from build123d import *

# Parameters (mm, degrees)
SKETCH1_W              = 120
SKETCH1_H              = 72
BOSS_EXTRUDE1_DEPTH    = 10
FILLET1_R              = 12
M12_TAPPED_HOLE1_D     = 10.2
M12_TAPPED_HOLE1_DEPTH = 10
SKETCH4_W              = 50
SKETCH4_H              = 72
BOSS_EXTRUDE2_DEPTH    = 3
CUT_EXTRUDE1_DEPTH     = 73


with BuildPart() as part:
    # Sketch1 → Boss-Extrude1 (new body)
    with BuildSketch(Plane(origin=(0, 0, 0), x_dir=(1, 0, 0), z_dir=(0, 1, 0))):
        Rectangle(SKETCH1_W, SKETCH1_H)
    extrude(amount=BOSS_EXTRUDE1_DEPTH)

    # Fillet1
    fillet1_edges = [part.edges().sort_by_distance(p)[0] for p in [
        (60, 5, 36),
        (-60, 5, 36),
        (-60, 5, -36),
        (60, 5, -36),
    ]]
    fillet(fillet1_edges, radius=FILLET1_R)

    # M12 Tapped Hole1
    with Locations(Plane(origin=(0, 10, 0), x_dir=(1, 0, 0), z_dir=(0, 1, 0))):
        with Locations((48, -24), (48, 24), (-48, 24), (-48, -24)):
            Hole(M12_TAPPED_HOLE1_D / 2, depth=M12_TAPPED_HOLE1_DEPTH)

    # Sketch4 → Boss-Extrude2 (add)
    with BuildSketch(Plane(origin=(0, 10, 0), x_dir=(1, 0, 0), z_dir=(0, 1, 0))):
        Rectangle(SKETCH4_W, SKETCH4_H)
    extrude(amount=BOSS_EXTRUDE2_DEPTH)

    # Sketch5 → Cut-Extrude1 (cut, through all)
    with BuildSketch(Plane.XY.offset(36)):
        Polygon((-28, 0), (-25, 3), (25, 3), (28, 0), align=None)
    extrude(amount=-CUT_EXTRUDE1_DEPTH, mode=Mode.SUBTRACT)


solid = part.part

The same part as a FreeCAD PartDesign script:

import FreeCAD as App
import Part
import Sketcher

V = App.Vector


def edges_at(feature, points):
    """Names of the edges that pass closest to the given points."""
    edges = feature.Shape.Edges
    near = lambda p: min(range(len(edges)), key=lambda i: edges[i].distToShape(Part.Vertex(*p))[0])
    return sorted({f"Edge{near(p) + 1}" for p in points})


def add_polygon(sketch, points):
    """Adds a closed chain of lines whose ends are joined by coincident constraints."""
    first, n = sketch.GeometryCount, len(points)
    for a, b in zip(points, points[1:] + points[:1]):
        sketch.addGeometry(Part.LineSegment(App.Vector(*a, 0), App.Vector(*b, 0)), False)
    for i in range(n):
        sketch.addConstraint(Sketcher.Constraint("Coincident", first + i, 2, first + (i + 1) % n, 1))

doc = App.newDocument("Part")
body = doc.addObject("PartDesign::Body", "Body")

# Sketch on XZ plane
sketch1 = body.newObject("Sketcher::SketchObject", "Sketch")
sketch1.AttachmentSupport = (doc.getObject("XZ_Plane"), [""])
sketch1.MapMode = "FlatFace"
add_polygon(sketch1, [(-60, -36), (-60, 36), (60, 36), (60, -36)])  # lines 0-3
sketch1.addConstraint(Sketcher.Constraint("Vertical", 0))
sketch1.addConstraint(Sketcher.Constraint("Horizontal", 1))
sketch1.addConstraint(Sketcher.Constraint("Vertical", 2))
sketch1.addConstraint(Sketcher.Constraint("Horizontal", 3))
sketch1.addConstraint(Sketcher.Constraint("Symmetric", 0, 2, 2, 2, -1, 1))
sketch1.addConstraint(Sketcher.Constraint("DistanceX", 1, 1, 1, 2, 120.0))
sketch1.addConstraint(Sketcher.Constraint("DistanceY", 0, 1, 0, 2, 72.0))
pad1 = body.newObject("PartDesign::Pad", "Pad")
pad1.Profile = sketch1
pad1.Length = 10
pad1.Reversed = True
doc.recompute()

fillet = body.newObject("PartDesign::Fillet", "Fillet")
fillet.Base = (pad1, edges_at(pad1, [
    (60, 5, 36),
    (-60, 5, 36),
    (-60, 5, -36),
    (60, 5, -36),
]))
fillet.Radius = 12

# Sketch on XZ plane
sketch2 = body.newObject("Sketcher::SketchObject", "Sketch001")
sketch2.AttachmentSupport = (doc.getObject("XZ_Plane"), [""])
sketch2.MapMode = "FlatFace"
sketch2.AttachmentOffset = App.Placement(V(0, 0, -10), App.Rotation())
sketch2.addGeometry(Part.Circle(V(48, 24, 0), V(0, 0, 1), 5), False)
sketch2.addGeometry(Part.Circle(V(48, -24, 0), V(0, 0, 1), 5), False)
sketch2.addGeometry(Part.Circle(V(-48, -24, 0), V(0, 0, 1), 5), False)
sketch2.addGeometry(Part.Circle(V(-48, 24, 0), V(0, 0, 1), 5), False)
sketch2.addConstraint(Sketcher.Constraint("Equal", 0, 1))
sketch2.addConstraint(Sketcher.Constraint("Equal", 1, 2))
sketch2.addConstraint(Sketcher.Constraint("Equal", 2, 3))
sketch2.addConstraint(Sketcher.Constraint("Symmetric", 0, 3, 2, 3, -1, 1))
sketch2.addConstraint(Sketcher.Constraint("Symmetric", 1, 3, 3, 3, -1, 1))
sketch2.addConstraint(Sketcher.Constraint("Symmetric", 1, 3, 2, 3, -2))
sketch2.addConstraint(Sketcher.Constraint("Diameter", 0, 10.2))
sketch2.addConstraint(Sketcher.Constraint("DistanceX", -1, 1, 0, 3, 48.0))
sketch2.addConstraint(Sketcher.Constraint("DistanceY", -1, 1, 0, 3, 24.0))
doc.recompute()
hole = body.newObject("PartDesign::Hole", "Hole")
hole.Profile = sketch2
hole.ThreadType = "None"
hole.Diameter = 10.2
hole.DepthType = "Dimension"
hole.Depth = 10
hole.DrillPoint = "Flat"
hole.Reversed = True

# Sketch on XZ plane
sketch3 = body.newObject("Sketcher::SketchObject", "Sketch002")
sketch3.AttachmentSupport = (doc.getObject("XZ_Plane"), [""])
sketch3.MapMode = "FlatFace"
sketch3.AttachmentOffset = App.Placement(V(0, 0, -10), App.Rotation())
add_polygon(sketch3, [(-25, -36), (-25, 36), (25, 36), (25, -36)])  # lines 0-3
sketch3.addConstraint(Sketcher.Constraint("Vertical", 0))
sketch3.addConstraint(Sketcher.Constraint("Horizontal", 1))
sketch3.addConstraint(Sketcher.Constraint("Vertical", 2))
sketch3.addConstraint(Sketcher.Constraint("Horizontal", 3))
sketch3.addConstraint(Sketcher.Constraint("Symmetric", 0, 2, 2, 2, -1, 1))
sketch3.addConstraint(Sketcher.Constraint("DistanceX", 1, 1, 1, 2, 50.0))
sketch3.addConstraint(Sketcher.Constraint("DistanceY", 0, 1, 0, 2, 72.0))
pad2 = body.newObject("PartDesign::Pad", "Pad001")
pad2.Profile = sketch3
pad2.Length = 3
pad2.Reversed = True

# Sketch on XY plane
sketch4 = body.newObject("Sketcher::SketchObject", "Sketch003")
sketch4.AttachmentSupport = (doc.getObject("XY_Plane"), [""])
sketch4.MapMode = "FlatFace"
sketch4.AttachmentOffset = App.Placement(V(0, 0, 36), App.Rotation())
add_polygon(sketch4, [(-25, 3), (-28, 0), (28, 0), (25, 3)])  # lines 0-3
sketch4.addConstraint(Sketcher.Constraint("Horizontal", 1))
sketch4.addConstraint(Sketcher.Constraint("Horizontal", 3))
sketch4.addConstraint(Sketcher.Constraint("Symmetric", 0, 2, 1, 2, -1, 1))
sketch4.addConstraint(Sketcher.Constraint("Perpendicular", 0, 2))
sketch4.addConstraint(Sketcher.Constraint("Equal", 0, 2))
sketch4.addConstraint(Sketcher.Constraint("DistanceX", 1, 1, 1, 2, 56.0))
sketch4.addConstraint(Sketcher.Constraint("DistanceX", 3, 2, 3, 1, 50.0))
pocket1 = body.newObject("PartDesign::Pocket", "Pocket")
pocket1.Profile = sketch4
pocket1.Type = "ThroughAll"

doc.recompute()
